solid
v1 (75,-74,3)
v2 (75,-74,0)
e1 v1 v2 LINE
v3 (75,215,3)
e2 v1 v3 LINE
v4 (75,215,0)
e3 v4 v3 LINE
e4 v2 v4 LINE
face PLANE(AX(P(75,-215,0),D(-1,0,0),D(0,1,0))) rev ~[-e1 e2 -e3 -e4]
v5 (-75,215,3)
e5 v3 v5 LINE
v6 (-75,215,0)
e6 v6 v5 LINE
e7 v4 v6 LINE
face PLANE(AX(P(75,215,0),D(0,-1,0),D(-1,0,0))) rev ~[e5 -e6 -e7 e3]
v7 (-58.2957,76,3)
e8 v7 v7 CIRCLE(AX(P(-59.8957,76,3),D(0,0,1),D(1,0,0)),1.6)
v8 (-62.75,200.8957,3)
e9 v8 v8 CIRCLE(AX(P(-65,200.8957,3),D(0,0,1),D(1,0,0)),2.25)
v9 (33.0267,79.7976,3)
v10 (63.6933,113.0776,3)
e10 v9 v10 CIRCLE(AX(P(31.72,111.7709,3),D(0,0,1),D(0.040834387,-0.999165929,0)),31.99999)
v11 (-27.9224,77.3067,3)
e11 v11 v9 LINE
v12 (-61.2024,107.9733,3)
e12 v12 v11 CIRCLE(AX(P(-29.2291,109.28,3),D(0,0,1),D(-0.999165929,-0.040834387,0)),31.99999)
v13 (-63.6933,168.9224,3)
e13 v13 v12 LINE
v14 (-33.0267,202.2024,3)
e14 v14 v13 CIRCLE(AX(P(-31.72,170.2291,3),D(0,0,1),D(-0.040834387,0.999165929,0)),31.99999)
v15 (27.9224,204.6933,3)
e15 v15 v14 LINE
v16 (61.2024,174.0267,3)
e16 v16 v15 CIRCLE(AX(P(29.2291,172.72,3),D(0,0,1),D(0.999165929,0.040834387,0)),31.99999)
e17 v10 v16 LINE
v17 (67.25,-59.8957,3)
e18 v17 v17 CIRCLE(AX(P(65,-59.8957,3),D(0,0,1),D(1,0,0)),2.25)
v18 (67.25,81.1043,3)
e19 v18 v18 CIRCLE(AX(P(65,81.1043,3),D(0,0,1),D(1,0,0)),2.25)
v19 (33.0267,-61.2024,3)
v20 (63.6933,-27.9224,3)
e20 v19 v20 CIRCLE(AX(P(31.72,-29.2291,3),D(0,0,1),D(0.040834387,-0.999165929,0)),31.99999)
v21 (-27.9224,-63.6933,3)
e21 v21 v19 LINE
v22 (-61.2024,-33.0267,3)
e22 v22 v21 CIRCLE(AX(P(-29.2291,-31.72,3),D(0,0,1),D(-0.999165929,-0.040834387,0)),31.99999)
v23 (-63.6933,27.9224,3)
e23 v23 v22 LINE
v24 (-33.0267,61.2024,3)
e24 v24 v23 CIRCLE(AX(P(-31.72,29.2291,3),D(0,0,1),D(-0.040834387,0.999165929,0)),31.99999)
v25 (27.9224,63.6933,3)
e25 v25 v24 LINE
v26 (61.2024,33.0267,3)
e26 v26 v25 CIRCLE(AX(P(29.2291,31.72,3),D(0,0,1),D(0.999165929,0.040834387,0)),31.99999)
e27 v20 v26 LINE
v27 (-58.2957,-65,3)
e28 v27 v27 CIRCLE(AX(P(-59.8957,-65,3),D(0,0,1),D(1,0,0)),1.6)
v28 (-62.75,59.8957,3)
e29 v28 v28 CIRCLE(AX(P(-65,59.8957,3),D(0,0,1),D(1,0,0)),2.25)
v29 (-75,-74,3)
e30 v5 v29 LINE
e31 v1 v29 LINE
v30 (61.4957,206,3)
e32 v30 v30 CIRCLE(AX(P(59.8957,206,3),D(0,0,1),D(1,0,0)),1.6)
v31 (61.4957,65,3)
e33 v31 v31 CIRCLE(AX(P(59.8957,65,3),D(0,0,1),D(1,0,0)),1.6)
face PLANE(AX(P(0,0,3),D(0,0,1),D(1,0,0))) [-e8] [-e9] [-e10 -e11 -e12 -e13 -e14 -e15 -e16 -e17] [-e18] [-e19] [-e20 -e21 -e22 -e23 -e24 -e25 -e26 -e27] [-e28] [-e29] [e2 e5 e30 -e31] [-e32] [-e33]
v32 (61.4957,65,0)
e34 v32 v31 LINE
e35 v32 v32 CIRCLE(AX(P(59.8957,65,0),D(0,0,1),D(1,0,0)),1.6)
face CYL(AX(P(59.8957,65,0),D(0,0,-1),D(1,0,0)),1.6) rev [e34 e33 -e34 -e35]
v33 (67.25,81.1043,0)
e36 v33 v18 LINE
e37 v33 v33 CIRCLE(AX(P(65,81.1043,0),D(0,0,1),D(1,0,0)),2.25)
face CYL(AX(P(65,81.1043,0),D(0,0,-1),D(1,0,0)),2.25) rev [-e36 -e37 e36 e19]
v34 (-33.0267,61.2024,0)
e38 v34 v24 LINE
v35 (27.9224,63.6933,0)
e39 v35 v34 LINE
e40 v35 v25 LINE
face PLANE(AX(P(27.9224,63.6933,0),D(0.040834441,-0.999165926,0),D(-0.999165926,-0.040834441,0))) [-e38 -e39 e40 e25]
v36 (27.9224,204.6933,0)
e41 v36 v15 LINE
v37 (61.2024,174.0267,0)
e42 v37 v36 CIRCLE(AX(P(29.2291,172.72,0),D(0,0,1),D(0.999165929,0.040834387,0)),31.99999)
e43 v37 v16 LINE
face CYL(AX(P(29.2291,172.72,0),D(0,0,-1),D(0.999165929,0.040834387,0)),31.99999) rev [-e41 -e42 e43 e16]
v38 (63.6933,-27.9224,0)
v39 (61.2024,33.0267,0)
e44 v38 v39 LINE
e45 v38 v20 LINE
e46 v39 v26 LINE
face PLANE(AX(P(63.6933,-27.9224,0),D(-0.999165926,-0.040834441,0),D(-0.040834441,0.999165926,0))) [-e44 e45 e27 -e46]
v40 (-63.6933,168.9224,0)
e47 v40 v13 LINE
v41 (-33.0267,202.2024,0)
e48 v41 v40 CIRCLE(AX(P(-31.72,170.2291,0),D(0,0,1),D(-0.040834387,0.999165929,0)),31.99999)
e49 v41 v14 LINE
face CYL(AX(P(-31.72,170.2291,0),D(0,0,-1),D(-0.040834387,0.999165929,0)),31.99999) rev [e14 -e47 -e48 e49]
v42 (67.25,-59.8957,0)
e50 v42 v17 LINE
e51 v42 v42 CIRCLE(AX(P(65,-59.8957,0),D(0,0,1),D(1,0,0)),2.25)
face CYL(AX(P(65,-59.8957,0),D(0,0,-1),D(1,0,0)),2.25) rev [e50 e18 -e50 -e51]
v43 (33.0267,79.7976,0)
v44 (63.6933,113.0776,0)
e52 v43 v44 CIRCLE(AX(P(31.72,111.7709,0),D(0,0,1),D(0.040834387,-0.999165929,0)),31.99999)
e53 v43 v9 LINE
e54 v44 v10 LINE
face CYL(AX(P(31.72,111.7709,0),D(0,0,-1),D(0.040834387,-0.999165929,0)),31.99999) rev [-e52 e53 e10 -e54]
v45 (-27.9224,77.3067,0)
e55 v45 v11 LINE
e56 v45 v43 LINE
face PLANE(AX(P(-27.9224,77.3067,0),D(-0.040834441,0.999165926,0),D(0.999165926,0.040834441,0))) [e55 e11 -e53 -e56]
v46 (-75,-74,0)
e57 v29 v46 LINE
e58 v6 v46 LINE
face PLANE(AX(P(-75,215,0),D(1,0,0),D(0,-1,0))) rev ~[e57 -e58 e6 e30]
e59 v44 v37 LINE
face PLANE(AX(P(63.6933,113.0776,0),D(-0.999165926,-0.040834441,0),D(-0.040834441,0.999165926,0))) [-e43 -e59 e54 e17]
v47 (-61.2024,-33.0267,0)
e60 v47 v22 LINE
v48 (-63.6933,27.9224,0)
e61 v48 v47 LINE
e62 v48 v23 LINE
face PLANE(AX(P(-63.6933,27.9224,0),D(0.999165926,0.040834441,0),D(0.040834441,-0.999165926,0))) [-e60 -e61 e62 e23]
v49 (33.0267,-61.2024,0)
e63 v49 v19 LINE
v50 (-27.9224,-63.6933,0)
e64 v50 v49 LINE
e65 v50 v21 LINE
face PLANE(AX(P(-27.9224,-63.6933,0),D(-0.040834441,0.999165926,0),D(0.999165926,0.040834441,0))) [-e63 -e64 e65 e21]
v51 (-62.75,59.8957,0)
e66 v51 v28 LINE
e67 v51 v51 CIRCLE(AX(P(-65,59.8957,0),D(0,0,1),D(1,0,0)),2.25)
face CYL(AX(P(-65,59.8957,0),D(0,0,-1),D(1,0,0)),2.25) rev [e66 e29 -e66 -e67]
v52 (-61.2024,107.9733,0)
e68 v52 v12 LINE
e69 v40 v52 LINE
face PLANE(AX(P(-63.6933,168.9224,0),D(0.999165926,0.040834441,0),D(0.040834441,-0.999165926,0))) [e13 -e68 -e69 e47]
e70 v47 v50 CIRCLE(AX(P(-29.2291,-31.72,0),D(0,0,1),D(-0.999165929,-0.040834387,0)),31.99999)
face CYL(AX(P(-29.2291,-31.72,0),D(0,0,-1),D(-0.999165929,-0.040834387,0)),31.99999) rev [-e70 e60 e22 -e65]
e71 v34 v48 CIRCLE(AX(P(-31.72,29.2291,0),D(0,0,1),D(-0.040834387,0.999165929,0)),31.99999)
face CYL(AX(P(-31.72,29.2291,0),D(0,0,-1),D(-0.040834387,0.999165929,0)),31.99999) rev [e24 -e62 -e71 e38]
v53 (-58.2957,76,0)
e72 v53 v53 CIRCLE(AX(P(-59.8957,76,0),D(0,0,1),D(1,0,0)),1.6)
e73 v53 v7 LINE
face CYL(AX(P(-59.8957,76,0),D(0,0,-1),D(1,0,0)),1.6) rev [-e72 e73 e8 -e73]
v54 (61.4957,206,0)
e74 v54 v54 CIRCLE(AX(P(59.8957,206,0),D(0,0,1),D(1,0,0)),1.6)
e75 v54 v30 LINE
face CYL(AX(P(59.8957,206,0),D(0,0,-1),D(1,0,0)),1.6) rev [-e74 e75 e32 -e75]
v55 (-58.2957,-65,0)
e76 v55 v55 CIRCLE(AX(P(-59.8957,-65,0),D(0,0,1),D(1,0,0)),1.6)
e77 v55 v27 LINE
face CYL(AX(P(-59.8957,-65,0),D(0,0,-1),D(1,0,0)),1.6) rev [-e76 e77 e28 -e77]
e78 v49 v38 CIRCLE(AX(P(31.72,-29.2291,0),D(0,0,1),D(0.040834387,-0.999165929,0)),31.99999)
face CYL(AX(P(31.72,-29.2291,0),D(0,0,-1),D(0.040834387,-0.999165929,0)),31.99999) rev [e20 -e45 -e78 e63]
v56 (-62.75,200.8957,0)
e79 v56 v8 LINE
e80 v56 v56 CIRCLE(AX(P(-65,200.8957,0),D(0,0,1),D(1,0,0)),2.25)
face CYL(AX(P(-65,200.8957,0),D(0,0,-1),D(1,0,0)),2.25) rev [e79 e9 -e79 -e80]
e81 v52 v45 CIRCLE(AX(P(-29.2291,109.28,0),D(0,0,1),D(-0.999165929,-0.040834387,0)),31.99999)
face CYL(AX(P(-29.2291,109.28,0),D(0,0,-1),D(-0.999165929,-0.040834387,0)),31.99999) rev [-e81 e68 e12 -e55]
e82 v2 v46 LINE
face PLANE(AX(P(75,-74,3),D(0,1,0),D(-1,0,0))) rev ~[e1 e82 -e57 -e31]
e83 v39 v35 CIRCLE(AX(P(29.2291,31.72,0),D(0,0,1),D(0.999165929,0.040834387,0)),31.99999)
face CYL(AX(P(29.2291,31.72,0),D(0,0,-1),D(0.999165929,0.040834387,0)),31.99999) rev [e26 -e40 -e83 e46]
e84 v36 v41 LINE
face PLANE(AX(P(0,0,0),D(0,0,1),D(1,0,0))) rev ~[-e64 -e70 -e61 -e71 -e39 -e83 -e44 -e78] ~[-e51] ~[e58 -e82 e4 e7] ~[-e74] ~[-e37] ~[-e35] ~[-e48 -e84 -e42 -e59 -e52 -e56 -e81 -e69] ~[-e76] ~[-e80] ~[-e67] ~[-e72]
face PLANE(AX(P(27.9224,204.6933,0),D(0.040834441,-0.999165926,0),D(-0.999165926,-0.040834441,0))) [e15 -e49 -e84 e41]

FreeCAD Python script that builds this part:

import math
import FreeCAD as App
import Part
import Sketcher
from FreeCAD import Vector
Q = App.Units.Quantity

doc = App.newDocument("Part")
body = doc.addObject("PartDesign::Body", "Body")

# Sketch on XY plane
sketch1 = body.newObject("Sketcher::SketchObject", "Sketch")
sketch1.AttachmentSupport = (doc.getObject("XY_Plane"), [""])
sketch1.MapMode = "FlatFace"
sketch1.addGeometry([
    Part.LineSegment(Vector(-75, 215, 0), Vector(-75, -215, 0)),  # 0
    Part.LineSegment(Vector(-75, -215, 0), Vector(75, -215, 0)),  # 1
    Part.LineSegment(Vector(75, -215, 0), Vector(75, 215, 0)),  # 2
    Part.LineSegment(Vector(75, 215, 0), Vector(-75, 215, 0)),  # 3
    Part.Circle(Vector(-59.8957, -65, 0), Vector(0, 0, 1), 1.6),  # 4
    Part.ArcOfCircle(Part.Circle(Vector(29.2291, -109.28, 0), Vector(0, 0, 1), 31.99999), math.radians(2.340289), math.radians(92.340289)),  # 5
    Part.LineSegment(Vector(61.2024, -107.9733, 0), Vector(63.6933, -168.9224, 0)),  # 6
    Part.ArcOfCircle(Part.Circle(Vector(31.72, -170.2291, 0), Vector(0, 0, 1), 31.99999), math.radians(-87.659711), math.radians(2.340289)),  # 7
    Part.LineSegment(Vector(33.0267, -202.2024, 0), Vector(-27.9224, -204.6933, 0)),  # 8
    Part.ArcOfCircle(Part.Circle(Vector(-29.2291, -172.72, 0), Vector(0, 0, 1), 31.99999), math.radians(-177.659711), math.radians(-87.659711)),  # 9
    Part.LineSegment(Vector(-61.2024, -174.0267, 0), Vector(-63.6933, -113.0776, 0)),  # 10
    Part.ArcOfCircle(Part.Circle(Vector(-31.72, -111.7709, 0), Vector(0, 0, 1), 31.99999), math.radians(92.340289), math.radians(182.340289)),  # 11
    Part.LineSegment(Vector(-33.0267, -79.7976, 0), Vector(27.9224, -77.3067, 0)),  # 12
    Part.Circle(Vector(65, -59.8957, 0), Vector(0, 0, 1), 2.25),  # 13
    Part.Circle(Vector(-65, 59.8957, 0), Vector(0, 0, 1), 2.25),  # 14
    Part.Circle(Vector(-59.8957, 76, 0), Vector(0, 0, 1), 1.6),  # 15
    Part.Circle(Vector(-65, 200.8957, 0), Vector(0, 0, 1), 2.25),  # 16
    Part.LineSegment(Vector(-61.2024, -33.0267, 0), Vector(-63.6933, 27.9224, 0)),  # 17
    Part.ArcOfCircle(Part.Circle(Vector(-31.72, 29.2291, 0), Vector(0, 0, 1), 31.99999), math.radians(92.340289), math.radians(182.340289)),  # 18
    Part.LineSegment(Vector(-33.0267, 61.2024, 0), Vector(27.9224, 63.6933, 0)),  # 19
    Part.ArcOfCircle(Part.Circle(Vector(29.2291, 31.72, 0), Vector(0, 0, 1), 31.99999), math.radians(2.340289), math.radians(92.340289)),  # 20
    Part.LineSegment(Vector(61.2024, 33.0267, 0), Vector(63.6933, -27.9224, 0)),  # 21
    Part.ArcOfCircle(Part.Circle(Vector(31.72, -29.2291, 0), Vector(0, 0, 1), 31.99999), math.radians(-87.659711), math.radians(2.340289)),  # 22
    Part.LineSegment(Vector(33.0267, -61.2024, 0), Vector(-27.9224, -63.6933, 0)),  # 23
    Part.ArcOfCircle(Part.Circle(Vector(-29.2291, -31.72, 0), Vector(0, 0, 1), 31.99999), math.radians(-177.659711), math.radians(-87.659711)),  # 24
    Part.Circle(Vector(59.8957, 65, 0), Vector(0, 0, 1), 1.6),  # 25
    Part.Circle(Vector(65, 81.1043, 0), Vector(0, 0, 1), 2.25),  # 26
    Part.ArcOfCircle(Part.Circle(Vector(29.2291, 172.72, 0), Vector(0, 0, 1), 31.99999), math.radians(2.340289), math.radians(92.340289)),  # 27
    Part.LineSegment(Vector(61.2024, 174.0267, 0), Vector(63.6933, 113.0776, 0)),  # 28
    Part.ArcOfCircle(Part.Circle(Vector(31.72, 111.7709, 0), Vector(0, 0, 1), 31.99999), math.radians(-87.659711), math.radians(2.340289)),  # 29
    Part.LineSegment(Vector(33.0267, 79.7976, 0), Vector(-27.9224, 77.3067, 0)),  # 30
    Part.ArcOfCircle(Part.Circle(Vector(-29.2291, 109.28, 0), Vector(0, 0, 1), 31.99999), math.radians(-177.659711), math.radians(-87.659711)),  # 31
    Part.LineSegment(Vector(-61.2024, 107.9733, 0), Vector(-63.6933, 168.9224, 0)),  # 32
    Part.ArcOfCircle(Part.Circle(Vector(-31.72, 170.2291, 0), Vector(0, 0, 1), 31.99999), math.radians(92.340289), math.radians(182.340289)),  # 33
    Part.LineSegment(Vector(-33.0267, 202.2024, 0), Vector(27.9224, 204.6933, 0)),  # 34
    Part.Circle(Vector(59.8957, 206, 0), Vector(0, 0, 1), 1.6),  # 35
], False)
sketch1.addConstraint([
    Sketcher.Constraint("Coincident", 0, 2, 1, 1),
    Sketcher.Constraint("Coincident", 1, 2, 2, 1),
    Sketcher.Constraint("Coincident", 2, 2, 3, 1),
    Sketcher.Constraint("Coincident", 3, 2, 0, 1),
    Sketcher.Constraint("Tangent", 5, 1, 6, 1),
    Sketcher.Constraint("Tangent", 6, 2, 7, 2),
    Sketcher.Constraint("Tangent", 7, 1, 8, 1),
    Sketcher.Constraint("Tangent", 8, 2, 9, 2),
    Sketcher.Constraint("Tangent", 9, 1, 10, 1),
    Sketcher.Constraint("Tangent", 10, 2, 11, 2),
    Sketcher.Constraint("Tangent", 11, 1, 12, 1),
    Sketcher.Constraint("Tangent", 12, 2, 5, 2),
    Sketcher.Constraint("Tangent", 17, 2, 18, 2),
    Sketcher.Constraint("Tangent", 18, 1, 19, 1),
    Sketcher.Constraint("Tangent", 19, 2, 20, 2),
    Sketcher.Constraint("Tangent", 20, 1, 21, 1),
    Sketcher.Constraint("Tangent", 21, 2, 22, 2),
    Sketcher.Constraint("Tangent", 22, 1, 23, 1),
    Sketcher.Constraint("Tangent", 23, 2, 24, 2),
    Sketcher.Constraint("Tangent", 24, 1, 17, 1),
    Sketcher.Constraint("Tangent", 27, 1, 28, 1),
    Sketcher.Constraint("Tangent", 28, 2, 29, 2),
    Sketcher.Constraint("Tangent", 29, 1, 30, 1),
    Sketcher.Constraint("Tangent", 30, 2, 31, 2),
    Sketcher.Constraint("Tangent", 31, 1, 32, 1),
    Sketcher.Constraint("Tangent", 32, 2, 33, 2),
    Sketcher.Constraint("Tangent", 33, 1, 34, 1),
    Sketcher.Constraint("Tangent", 34, 2, 27, 2),
    Sketcher.Constraint("Vertical", 0),
    Sketcher.Constraint("Horizontal", 1),
    Sketcher.Constraint("Vertical", 2),
    Sketcher.Constraint("Horizontal", 3),
    Sketcher.Constraint("Equal", 5, 7),
    Sketcher.Constraint("Equal", 7, 9),
    Sketcher.Constraint("Equal", 9, 11),
    Sketcher.Constraint("Equal", 13, 14),
    Sketcher.Constraint("Equal", 4, 15),
    Sketcher.Constraint("Equal", 14, 16),
    Sketcher.Constraint("Equal", 11, 18),
    Sketcher.Constraint("Equal", 18, 20),
    Sketcher.Constraint("Equal", 20, 22),
    Sketcher.Constraint("Equal", 22, 24),
    Sketcher.Constraint("Equal", 15, 25),
    Sketcher.Constraint("Equal", 16, 26),
    Sketcher.Constraint("Equal", 24, 27),
    Sketcher.Constraint("Equal", 27, 29),
    Sketcher.Constraint("Equal", 29, 31),
    Sketcher.Constraint("Equal", 31, 33),
    Sketcher.Constraint("Equal", 25, 35),
    Sketcher.Constraint("Symmetric", 13, 3, 14, 3, -1, 1),
    Sketcher.Constraint("Symmetric", 18, 3, 22, 3, -1, 1),
    Sketcher.Constraint("Symmetric", 20, 3, 24, 3, -1, 1),
    Sketcher.Constraint("Symmetric", 4, 3, 25, 3, -1, 1),
    Sketcher.Constraint("Symmetric", 9, 3, 27, 3, -1, 1),
    Sketcher.Constraint("Symmetric", 11, 3, 29, 3, -1, 1),
    Sketcher.Constraint("Symmetric", 5, 3, 31, 3, -1, 1),
    Sketcher.Constraint("Symmetric", 7, 3, 33, 3, -1, 1),
    Sketcher.Constraint("Symmetric", 0, 2, 2, 2, -1, 1),
    Sketcher.Constraint("Perpendicular", 6, 8),
    Sketcher.Constraint("Perpendicular", 8, 10),
    Sketcher.Constraint("Perpendicular", 10, 12),
    Sketcher.Constraint("Perpendicular", 12, 17),
    Sketcher.Constraint("Perpendicular", 17, 19),
    Sketcher.Constraint("Vertical", 4, 3, 15, 3),
    Sketcher.Constraint("Vertical", 14, 3, 16, 3),
    Sketcher.Constraint("Vertical", 11, 3, 18, 3),
    Sketcher.Constraint("Vertical", 5, 3, 20, 3),
    Sketcher.Constraint("Vertical", 7, 3, 22, 3),
    Sketcher.Constraint("Vertical", 13, 3, 26, 3),
    Sketcher.Constraint("Vertical", 25, 3, 35, 3),
    Sketcher.Constraint("Equal", 6, 8),
    Sketcher.Constraint("Radius", 5, Q("32 mm")),
    Sketcher.Constraint("Diameter", 4, Q("3.2 mm")),
    Sketcher.Constraint("Diameter", 13, Q("4.5 mm")),
    Sketcher.Constraint("DistanceX", 1, 1, 1, 2, Q("150 mm")),
    Sketcher.Constraint("DistanceY", 0, 2, 0, 1, Q("430 mm")),
    Sketcher.Constraint("DistanceY", 4, 3, -1, 1, Q("65 mm")),
    Sketcher.Constraint("DistanceX", -1, 1, 13, 3, Q("65 mm")),
    Sketcher.Constraint("DistanceY", 4, 3, 15, 3, Q("141 mm")),
    Sketcher.Constraint("DistanceY", 14, 3, 16, 3, Q("141 mm")),
    Sketcher.Constraint("DistanceY", 11, 3, 18, 3, Q("141 mm")),
    Sketcher.Constraint("Distance", 6, Q("61 mm")),
    Sketcher.Constraint("DistanceY", -1, 1, 35, 3, Q("206 mm")),
    Sketcher.Constraint("Angle", 6, Q("-87.6597 deg")),
    Sketcher.Constraint("DistanceX", 4, 3, 11, 1, Q("26.869 mm")),
    Sketcher.Constraint("DistanceY", 12, 2, 13, 3, Q("17.411 mm")),
    Sketcher.Constraint("DistanceY", 19, 2, 26, 3, Q("17.411 mm")),
])
pad1 = body.newObject("PartDesign::Pad", "Pad")
pad1.Profile = sketch1
pad1.Length = 3

# Sketch on XY plane
sketch2 = body.newObject("Sketcher::SketchObject", "Sketch001")
sketch2.AttachmentSupport = (doc.getObject("XY_Plane"), [""])
sketch2.MapMode = "FlatFace"
sketch2.AttachmentOffset = App.Placement(Vector(0, 0, 3), App.Rotation())
sketch2.addGeometry([
    Part.LineSegment(Vector(-75, -74, 0), Vector(-75, -215, 0)),
    Part.LineSegment(Vector(-75, -215, 0), Vector(75, -215, 0)),
    Part.LineSegment(Vector(75, -215, 0), Vector(75, -74, 0)),
    Part.LineSegment(Vector(75, -74, 0), Vector(-75, -74, 0)),
], False)
sketch2.addConstraint([
    Sketcher.Constraint("Coincident", 0, 2, 1, 1),
    Sketcher.Constraint("Coincident", 1, 2, 2, 1),
    Sketcher.Constraint("Coincident", 2, 2, 3, 1),
    Sketcher.Constraint("Coincident", 3, 2, 0, 1),
    Sketcher.Constraint("Vertical", 0),
    Sketcher.Constraint("Horizontal", 1),
    Sketcher.Constraint("Vertical", 2),
    Sketcher.Constraint("Horizontal", 3),
    Sketcher.Constraint("DistanceY", 0, 2, 0, 1, Q("141 mm")),
    Sketcher.Constraint("DistanceX", 1, 1, 1, 2, Q("150 mm")),
    Sketcher.Constraint("DistanceX", 0, 2, -1, 1, Q("75 mm")),
    Sketcher.Constraint("DistanceY", 0, 2, -1, 1, Q("215 mm")),
])
pocket1 = body.newObject("PartDesign::Pocket", "Pocket")
pocket1.Profile = sketch2
pocket1.Type = "ThroughAll"

doc.recompute()
